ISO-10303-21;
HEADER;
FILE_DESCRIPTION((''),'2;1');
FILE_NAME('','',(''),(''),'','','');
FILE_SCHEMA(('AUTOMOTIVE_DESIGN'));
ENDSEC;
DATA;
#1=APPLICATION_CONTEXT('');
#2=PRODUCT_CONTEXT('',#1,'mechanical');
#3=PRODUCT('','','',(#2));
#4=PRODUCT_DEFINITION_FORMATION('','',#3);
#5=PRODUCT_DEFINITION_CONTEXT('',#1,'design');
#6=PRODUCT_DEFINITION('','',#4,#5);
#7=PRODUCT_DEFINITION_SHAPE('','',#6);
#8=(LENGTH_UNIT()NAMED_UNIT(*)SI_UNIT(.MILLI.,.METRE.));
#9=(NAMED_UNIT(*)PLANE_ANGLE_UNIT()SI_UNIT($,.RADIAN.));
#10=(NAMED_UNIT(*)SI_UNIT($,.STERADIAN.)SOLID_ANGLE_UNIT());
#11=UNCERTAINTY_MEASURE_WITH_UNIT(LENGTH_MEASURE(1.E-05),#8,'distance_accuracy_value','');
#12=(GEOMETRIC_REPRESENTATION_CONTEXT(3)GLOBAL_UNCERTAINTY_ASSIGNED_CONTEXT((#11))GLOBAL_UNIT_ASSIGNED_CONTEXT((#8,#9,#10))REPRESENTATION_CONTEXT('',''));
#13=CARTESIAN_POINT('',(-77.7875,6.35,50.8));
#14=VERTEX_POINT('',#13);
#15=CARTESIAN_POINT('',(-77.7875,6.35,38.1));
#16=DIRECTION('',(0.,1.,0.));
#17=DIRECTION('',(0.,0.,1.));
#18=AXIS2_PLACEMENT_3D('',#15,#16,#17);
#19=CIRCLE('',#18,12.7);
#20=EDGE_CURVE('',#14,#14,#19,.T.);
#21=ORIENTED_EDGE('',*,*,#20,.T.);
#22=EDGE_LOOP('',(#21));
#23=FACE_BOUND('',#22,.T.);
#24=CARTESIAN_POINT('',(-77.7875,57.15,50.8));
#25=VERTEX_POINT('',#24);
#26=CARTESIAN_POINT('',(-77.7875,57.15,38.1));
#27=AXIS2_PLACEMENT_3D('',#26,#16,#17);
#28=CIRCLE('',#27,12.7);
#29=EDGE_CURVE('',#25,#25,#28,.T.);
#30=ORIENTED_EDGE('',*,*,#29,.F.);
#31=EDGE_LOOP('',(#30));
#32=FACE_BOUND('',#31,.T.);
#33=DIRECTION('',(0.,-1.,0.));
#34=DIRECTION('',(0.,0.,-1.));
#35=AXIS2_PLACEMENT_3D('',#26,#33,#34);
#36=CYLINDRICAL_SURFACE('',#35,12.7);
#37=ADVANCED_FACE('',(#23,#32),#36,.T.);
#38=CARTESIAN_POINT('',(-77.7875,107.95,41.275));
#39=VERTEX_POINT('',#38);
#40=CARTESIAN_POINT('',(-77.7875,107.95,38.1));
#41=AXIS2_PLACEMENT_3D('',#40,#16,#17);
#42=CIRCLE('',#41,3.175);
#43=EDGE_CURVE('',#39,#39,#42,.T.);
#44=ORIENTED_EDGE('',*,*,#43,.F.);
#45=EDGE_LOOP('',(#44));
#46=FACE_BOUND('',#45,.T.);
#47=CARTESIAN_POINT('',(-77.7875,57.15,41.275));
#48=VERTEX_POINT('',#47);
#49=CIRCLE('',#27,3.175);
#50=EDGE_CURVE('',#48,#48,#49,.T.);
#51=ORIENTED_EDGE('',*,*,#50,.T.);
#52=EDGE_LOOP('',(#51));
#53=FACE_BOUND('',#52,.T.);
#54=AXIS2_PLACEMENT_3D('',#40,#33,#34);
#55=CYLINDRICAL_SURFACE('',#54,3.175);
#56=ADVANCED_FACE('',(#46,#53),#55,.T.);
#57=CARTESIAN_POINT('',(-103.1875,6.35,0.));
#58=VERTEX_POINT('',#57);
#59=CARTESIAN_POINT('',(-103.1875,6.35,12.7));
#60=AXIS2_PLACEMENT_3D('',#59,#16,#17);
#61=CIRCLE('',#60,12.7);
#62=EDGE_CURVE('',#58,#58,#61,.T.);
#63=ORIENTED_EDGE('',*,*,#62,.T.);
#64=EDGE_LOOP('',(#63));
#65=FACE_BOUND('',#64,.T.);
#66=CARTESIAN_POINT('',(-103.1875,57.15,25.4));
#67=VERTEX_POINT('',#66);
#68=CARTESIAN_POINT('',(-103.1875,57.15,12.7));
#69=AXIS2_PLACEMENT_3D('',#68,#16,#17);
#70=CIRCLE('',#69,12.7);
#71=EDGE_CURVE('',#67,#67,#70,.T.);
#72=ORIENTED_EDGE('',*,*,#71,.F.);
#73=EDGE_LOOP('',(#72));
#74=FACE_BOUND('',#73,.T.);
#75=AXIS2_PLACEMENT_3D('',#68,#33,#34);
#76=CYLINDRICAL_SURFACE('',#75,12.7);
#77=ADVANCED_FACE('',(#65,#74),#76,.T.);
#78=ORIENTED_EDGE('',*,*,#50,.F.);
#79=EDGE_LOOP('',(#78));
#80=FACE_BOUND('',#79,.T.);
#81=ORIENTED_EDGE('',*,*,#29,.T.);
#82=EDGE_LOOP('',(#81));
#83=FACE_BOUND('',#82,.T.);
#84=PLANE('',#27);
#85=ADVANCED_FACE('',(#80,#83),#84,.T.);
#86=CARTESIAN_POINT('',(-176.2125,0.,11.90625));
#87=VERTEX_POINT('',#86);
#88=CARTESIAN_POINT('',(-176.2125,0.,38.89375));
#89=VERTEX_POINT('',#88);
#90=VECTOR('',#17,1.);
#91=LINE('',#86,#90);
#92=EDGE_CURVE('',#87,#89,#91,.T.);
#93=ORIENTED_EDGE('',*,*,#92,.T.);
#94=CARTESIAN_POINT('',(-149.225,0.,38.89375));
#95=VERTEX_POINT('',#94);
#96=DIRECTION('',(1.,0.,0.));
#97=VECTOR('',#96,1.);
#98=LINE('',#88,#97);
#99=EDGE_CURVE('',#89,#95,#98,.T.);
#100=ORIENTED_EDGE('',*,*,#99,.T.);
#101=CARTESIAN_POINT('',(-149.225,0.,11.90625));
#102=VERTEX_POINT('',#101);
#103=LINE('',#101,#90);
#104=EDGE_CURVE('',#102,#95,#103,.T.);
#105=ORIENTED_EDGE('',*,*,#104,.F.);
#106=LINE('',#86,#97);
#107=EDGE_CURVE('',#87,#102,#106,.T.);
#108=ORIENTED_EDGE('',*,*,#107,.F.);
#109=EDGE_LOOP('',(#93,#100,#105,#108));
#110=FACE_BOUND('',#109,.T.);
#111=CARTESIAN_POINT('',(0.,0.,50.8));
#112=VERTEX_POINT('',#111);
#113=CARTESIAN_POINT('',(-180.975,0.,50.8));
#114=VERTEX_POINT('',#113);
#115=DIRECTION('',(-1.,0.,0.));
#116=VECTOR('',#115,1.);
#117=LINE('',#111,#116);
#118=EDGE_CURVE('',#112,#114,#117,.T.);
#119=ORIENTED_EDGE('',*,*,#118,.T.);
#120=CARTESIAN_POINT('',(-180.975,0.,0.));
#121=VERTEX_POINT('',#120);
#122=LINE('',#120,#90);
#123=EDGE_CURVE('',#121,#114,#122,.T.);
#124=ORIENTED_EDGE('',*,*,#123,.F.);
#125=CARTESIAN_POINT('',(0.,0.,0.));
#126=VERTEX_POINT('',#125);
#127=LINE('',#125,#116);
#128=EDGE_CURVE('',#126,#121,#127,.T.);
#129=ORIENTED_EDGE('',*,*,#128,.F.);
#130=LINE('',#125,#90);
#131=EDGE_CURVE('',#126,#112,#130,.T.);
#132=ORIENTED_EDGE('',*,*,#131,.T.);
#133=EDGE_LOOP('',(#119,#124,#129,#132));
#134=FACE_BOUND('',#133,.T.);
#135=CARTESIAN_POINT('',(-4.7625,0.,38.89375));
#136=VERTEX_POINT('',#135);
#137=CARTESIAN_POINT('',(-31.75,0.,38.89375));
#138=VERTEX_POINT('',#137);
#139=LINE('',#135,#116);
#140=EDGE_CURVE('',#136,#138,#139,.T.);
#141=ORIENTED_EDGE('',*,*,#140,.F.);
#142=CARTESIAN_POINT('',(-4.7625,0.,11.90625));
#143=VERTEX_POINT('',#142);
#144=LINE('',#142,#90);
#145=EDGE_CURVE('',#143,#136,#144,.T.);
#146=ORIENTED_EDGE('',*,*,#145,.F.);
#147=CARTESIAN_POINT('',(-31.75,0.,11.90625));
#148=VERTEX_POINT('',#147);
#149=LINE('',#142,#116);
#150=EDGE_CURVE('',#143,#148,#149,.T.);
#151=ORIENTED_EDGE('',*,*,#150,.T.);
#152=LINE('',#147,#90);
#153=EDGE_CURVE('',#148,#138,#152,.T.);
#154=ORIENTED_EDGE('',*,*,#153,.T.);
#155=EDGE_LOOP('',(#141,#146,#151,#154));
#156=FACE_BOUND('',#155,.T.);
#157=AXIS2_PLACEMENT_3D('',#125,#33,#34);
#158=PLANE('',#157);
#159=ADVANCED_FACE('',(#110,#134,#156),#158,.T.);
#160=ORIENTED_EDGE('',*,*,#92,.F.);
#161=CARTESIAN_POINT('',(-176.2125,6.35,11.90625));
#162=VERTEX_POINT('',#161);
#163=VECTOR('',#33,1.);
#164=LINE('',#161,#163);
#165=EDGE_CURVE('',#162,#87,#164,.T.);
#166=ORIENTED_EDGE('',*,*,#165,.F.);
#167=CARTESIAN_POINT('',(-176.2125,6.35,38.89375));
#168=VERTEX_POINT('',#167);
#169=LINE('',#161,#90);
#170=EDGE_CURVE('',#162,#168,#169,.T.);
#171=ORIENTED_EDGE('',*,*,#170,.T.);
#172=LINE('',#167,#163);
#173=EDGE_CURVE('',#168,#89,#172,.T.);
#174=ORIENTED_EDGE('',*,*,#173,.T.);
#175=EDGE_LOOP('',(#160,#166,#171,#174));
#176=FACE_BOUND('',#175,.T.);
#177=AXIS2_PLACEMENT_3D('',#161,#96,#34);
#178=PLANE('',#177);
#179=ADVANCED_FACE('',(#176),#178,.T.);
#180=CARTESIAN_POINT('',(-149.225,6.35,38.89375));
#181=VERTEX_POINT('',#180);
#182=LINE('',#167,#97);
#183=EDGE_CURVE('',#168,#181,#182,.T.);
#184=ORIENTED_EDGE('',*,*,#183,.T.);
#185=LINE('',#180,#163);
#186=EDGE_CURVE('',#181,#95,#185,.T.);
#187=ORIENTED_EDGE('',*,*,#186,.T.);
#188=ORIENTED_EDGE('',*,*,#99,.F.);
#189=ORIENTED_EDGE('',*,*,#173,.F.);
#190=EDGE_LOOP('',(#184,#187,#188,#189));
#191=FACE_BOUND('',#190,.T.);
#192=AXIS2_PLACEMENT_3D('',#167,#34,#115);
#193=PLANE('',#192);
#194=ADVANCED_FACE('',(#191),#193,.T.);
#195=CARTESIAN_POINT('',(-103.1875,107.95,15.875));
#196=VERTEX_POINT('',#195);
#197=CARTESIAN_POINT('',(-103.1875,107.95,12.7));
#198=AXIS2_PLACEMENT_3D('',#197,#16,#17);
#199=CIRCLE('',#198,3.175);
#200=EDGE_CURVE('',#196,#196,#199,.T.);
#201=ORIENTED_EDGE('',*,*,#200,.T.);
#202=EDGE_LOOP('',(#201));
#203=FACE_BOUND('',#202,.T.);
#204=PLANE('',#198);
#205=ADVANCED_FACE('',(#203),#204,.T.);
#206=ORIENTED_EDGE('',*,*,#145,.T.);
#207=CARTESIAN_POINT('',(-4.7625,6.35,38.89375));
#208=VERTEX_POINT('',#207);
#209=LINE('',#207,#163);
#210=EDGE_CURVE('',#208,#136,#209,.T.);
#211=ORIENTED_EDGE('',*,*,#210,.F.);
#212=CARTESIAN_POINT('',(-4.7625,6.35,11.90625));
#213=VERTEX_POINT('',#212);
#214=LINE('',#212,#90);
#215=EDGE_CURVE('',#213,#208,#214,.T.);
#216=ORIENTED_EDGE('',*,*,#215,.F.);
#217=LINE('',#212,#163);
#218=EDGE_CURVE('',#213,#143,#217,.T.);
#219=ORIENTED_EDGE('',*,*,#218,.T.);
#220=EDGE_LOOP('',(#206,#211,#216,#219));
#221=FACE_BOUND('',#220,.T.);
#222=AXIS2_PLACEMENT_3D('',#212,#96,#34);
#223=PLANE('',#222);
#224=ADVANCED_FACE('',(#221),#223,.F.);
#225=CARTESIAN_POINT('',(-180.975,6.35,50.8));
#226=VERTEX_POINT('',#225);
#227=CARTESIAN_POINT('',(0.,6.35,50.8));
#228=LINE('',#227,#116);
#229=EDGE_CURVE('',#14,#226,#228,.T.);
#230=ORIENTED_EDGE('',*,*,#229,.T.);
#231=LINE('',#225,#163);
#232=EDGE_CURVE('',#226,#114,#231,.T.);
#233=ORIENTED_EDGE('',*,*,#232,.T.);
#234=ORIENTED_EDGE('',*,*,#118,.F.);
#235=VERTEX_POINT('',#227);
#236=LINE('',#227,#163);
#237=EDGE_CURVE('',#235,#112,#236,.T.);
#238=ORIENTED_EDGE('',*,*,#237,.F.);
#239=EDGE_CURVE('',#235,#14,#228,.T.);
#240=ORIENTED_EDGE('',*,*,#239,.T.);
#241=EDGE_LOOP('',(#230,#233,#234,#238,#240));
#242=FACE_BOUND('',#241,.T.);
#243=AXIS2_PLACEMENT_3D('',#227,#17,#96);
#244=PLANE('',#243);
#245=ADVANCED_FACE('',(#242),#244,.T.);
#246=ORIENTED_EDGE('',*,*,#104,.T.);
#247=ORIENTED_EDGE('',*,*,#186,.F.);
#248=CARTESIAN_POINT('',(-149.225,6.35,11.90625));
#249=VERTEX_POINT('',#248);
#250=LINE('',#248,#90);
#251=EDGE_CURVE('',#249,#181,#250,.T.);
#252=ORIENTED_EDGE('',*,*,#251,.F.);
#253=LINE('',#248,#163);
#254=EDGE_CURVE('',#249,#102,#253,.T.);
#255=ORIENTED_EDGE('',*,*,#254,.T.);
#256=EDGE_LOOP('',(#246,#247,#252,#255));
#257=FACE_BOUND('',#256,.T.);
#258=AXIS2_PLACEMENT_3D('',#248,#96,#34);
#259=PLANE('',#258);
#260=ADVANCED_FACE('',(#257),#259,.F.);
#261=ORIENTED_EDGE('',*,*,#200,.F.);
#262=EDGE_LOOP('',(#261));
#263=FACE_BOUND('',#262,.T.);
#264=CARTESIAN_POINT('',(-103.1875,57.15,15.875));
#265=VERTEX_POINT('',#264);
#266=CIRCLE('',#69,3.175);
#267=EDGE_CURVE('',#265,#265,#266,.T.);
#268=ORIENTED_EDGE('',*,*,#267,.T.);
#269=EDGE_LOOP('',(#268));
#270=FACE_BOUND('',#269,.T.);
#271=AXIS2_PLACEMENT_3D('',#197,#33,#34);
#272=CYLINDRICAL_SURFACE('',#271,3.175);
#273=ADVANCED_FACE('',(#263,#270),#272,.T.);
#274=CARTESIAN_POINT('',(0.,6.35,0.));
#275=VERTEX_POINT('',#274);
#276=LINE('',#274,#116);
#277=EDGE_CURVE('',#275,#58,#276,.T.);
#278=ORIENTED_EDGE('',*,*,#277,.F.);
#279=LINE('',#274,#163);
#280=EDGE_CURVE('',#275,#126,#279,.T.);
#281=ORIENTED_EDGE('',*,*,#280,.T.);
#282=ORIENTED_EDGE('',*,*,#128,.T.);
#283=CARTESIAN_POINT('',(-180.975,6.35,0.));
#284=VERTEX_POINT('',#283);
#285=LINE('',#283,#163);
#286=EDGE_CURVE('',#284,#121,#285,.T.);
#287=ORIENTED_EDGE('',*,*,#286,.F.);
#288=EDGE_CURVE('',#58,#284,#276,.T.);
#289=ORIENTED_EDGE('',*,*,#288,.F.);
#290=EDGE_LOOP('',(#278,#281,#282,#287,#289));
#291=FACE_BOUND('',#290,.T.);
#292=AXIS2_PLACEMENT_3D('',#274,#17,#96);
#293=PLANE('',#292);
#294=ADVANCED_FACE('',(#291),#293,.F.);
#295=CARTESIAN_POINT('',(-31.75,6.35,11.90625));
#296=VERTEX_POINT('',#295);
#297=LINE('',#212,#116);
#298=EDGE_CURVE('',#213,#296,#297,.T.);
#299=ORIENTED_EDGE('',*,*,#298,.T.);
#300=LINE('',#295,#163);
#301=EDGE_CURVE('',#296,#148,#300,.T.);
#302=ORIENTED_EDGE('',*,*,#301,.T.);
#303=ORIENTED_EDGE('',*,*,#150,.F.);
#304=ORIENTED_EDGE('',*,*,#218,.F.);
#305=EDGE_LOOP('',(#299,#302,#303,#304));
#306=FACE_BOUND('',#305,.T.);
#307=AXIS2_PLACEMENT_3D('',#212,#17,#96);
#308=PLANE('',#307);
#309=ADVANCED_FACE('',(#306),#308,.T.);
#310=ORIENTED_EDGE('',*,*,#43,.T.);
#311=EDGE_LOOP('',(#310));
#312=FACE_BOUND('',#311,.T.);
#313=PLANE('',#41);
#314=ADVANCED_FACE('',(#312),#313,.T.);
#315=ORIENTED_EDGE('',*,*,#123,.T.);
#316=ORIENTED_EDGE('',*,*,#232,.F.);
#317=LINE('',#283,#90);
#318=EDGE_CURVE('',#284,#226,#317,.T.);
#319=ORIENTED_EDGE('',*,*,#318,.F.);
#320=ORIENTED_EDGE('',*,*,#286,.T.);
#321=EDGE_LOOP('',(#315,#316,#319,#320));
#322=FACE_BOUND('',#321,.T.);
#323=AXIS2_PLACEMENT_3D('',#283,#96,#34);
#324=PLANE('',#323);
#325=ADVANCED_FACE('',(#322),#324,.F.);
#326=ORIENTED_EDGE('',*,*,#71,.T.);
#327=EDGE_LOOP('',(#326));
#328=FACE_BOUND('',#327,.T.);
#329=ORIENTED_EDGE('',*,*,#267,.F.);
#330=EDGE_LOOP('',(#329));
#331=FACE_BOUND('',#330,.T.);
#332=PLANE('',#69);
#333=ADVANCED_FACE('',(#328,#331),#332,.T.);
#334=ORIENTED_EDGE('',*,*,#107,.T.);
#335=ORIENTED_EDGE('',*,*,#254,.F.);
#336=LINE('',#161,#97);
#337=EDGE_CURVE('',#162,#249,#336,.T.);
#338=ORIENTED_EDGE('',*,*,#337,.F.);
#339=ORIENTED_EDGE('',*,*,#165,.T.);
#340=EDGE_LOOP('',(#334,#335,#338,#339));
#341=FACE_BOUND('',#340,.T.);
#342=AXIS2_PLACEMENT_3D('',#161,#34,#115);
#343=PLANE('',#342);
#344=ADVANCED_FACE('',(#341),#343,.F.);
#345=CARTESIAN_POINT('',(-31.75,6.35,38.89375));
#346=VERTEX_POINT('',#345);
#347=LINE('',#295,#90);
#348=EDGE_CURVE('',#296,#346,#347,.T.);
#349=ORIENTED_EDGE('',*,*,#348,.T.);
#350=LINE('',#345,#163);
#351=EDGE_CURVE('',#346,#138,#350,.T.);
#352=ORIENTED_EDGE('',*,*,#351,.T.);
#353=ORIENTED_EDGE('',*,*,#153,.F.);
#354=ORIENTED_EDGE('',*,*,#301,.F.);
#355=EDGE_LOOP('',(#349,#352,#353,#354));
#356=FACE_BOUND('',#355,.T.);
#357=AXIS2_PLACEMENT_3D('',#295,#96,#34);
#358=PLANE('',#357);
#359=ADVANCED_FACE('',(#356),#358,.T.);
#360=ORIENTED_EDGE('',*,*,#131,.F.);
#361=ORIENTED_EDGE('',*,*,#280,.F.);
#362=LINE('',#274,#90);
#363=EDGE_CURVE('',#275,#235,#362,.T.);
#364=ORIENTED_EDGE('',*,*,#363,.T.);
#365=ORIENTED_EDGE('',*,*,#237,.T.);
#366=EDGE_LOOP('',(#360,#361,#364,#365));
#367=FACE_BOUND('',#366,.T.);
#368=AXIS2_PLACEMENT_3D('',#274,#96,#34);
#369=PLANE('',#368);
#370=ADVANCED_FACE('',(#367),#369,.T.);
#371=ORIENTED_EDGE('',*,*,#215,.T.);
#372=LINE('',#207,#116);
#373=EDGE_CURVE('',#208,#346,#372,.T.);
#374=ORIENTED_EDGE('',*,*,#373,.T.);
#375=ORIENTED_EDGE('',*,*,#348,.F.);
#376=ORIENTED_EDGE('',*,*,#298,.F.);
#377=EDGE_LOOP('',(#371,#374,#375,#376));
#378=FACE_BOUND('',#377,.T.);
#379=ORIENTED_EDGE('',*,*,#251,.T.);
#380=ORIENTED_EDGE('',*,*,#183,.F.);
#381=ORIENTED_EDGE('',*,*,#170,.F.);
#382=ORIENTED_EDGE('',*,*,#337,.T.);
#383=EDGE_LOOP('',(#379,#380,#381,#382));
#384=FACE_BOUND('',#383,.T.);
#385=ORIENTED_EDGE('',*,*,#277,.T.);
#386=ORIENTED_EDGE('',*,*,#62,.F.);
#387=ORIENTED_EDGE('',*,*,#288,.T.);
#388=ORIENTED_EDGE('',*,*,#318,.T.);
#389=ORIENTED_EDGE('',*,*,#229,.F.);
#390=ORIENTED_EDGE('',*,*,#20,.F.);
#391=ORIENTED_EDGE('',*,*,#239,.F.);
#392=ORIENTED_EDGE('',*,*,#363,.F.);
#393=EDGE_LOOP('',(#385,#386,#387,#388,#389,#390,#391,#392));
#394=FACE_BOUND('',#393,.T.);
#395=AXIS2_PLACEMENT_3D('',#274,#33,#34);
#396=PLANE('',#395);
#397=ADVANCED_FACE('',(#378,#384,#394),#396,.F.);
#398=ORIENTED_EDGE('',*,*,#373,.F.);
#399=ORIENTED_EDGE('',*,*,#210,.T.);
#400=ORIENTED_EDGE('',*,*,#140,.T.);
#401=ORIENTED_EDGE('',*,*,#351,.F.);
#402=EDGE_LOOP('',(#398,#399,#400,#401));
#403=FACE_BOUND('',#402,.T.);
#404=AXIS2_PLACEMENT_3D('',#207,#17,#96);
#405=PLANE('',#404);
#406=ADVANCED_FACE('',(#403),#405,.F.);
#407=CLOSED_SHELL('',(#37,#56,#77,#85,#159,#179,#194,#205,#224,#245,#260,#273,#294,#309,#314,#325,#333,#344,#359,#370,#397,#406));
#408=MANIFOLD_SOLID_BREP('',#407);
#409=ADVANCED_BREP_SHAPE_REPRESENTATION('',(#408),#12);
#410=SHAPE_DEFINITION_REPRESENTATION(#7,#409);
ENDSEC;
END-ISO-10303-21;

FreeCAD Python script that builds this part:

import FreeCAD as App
import Part
import Sketcher
from FreeCAD import Vector
Q = App.Units.Quantity

doc = App.newDocument("Part")
params = doc.addObject("Spreadsheet::Sheet", "Params")
for row, (alias, value) in enumerate([
    ("sketch1_height", "2 in"),
    ("sketch1_width", "7.125 in"),
    ("sketch1_width2", "1.0625 in"),
    ("pad1_length", "0.25 in"),
    ("sketch2_diameter", "0.25 in"),
    ("pad2_length", "4 in"),
    ("sketch3_diameter", "1 in"),
    ("pad3_length", "2 in"),
], start=1):
    params.set(f"A{row}", alias)
    params.set(f"B{row}", "=" + value)
    params.setAlias(f"B{row}", alias)

body = doc.addObject("PartDesign::Body", "Body")

sketch1 = body.newObject("Sketcher::SketchObject", "Sketch")
sketch1.AttachmentSupport = (doc.getObject("XZ_Plane"), [""])
sketch1.MapMode = "FlatFace"
sketch1.addGeometry([
    Part.LineSegment(Vector(-181, 0, 0), Vector(-181, 51, 0)),
    Part.LineSegment(Vector(-181, 51, 0), Vector(0, 51, 0)),
    Part.LineSegment(Vector(0, 51, 0), Vector(0, 0, 0)),
    Part.LineSegment(Vector(0, 0, 0), Vector(-181, 0, 0)),
    Part.LineSegment(Vector(-149, 39, 0), Vector(-176, 39, 0)),
    Part.LineSegment(Vector(-176, 39, 0), Vector(-176, 12, 0)),
    Part.LineSegment(Vector(-176, 12, 0), Vector(-149, 12, 0)),
    Part.LineSegment(Vector(-149, 12, 0), Vector(-149, 39, 0)),
    Part.LineSegment(Vector(-5, 39, 0), Vector(-32, 39, 0)),
    Part.LineSegment(Vector(-32, 39, 0), Vector(-32, 12, 0)),
    Part.LineSegment(Vector(-32, 12, 0), Vector(-5, 12, 0)),
    Part.LineSegment(Vector(-5, 12, 0), Vector(-5, 39, 0)),
], False)
sketch1.addConstraint([
    Sketcher.Constraint("Coincident", 0, 2, 1, 1),
    Sketcher.Constraint("Coincident", 1, 2, 2, 1),
    Sketcher.Constraint("Coincident", 2, 2, 3, 1),
    Sketcher.Constraint("Coincident", 3, 2, 0, 1),
    Sketcher.Constraint("Coincident", 4, 2, 5, 1),
    Sketcher.Constraint("Coincident", 5, 2, 6, 1),
    Sketcher.Constraint("Coincident", 6, 2, 7, 1),
    Sketcher.Constraint("Coincident", 7, 2, 4, 1),
    Sketcher.Constraint("Coincident", 8, 2, 9, 1),
    Sketcher.Constraint("Coincident", 9, 2, 10, 1),
    Sketcher.Constraint("Coincident", 10, 2, 11, 1),
    Sketcher.Constraint("Coincident", 11, 2, 8, 1),
    Sketcher.Constraint("Vertical", 0),
    Sketcher.Constraint("Horizontal", 1),
    Sketcher.Constraint("Vertical", 2),
    Sketcher.Constraint("Horizontal", 3),
    Sketcher.Constraint("Horizontal", 4),
    Sketcher.Constraint("Vertical", 5),
    Sketcher.Constraint("Horizontal", 6),
    Sketcher.Constraint("Vertical", 7),
    Sketcher.Constraint("Horizontal", 8),
    Sketcher.Constraint("Vertical", 9),
    Sketcher.Constraint("Horizontal", 10),
    Sketcher.Constraint("Vertical", 11),
    Sketcher.Constraint("Coincident", 2, 2, -1, 1),
    Sketcher.Constraint("Horizontal", 7, 2, 8, 2),
    Sketcher.Constraint("Horizontal", 6, 2, 9, 2),
    Sketcher.Constraint("Equal", 6, 8),
    Sketcher.Constraint("Equal", 10, 5),
    Sketcher.Constraint("DistanceY", 0, 1, 0, 2, Q("2 in")),
    Sketcher.Constraint("DistanceX", 1, 1, 1, 2, Q("7.125 in")),
    Sketcher.Constraint("DistanceX", 4, 2, 4, 1, Q("1.0625 in")),
    Sketcher.Constraint("DistanceX", 8, 2, -1, 1, Q("1.25 in")),
    Sketcher.Constraint("DistanceX", 3, 2, 6, 2, Q("1.25 in")),
    Sketcher.Constraint("DistanceY", -1, 1, 4, 2, Q("1.53125 in")),
])
sketch1.setExpression("Constraints[29]", "Params.sketch1_height")
sketch1.setExpression("Constraints[30]", "Params.sketch1_width")
sketch1.setExpression("Constraints[31]", "Params.sketch1_width2")
pad1 = body.newObject("PartDesign::Pad", "Pad")
pad1.Profile = sketch1
pad1.setExpression("Length", "Params.pad1_length")
pad1.Reversed = True

sketch2 = body.newObject("Sketcher::SketchObject", "Sketch001")
sketch2.AttachmentSupport = (doc.getObject("XZ_Plane"), [""])
sketch2.MapMode = "FlatFace"
sketch2.AttachmentOffset = App.Placement(Vector(0, 0, -0.25 * 25.4), App.Rotation())
sketch2.addGeometry([
    Part.Circle(Vector(-77.8, 38.1, 0), Vector(0, 0, 1), 3.2),
    Part.Circle(Vector(-103.2, 12.7, 0), Vector(0, 0, 1), 3.2),
], False)
sketch2.addConstraint([
    Sketcher.Constraint("Equal", 0, 1),
    Sketcher.Constraint("Diameter", 0, Q("0.25 in")),
    Sketcher.Constraint("DistanceX", 1, 3, 0, 3, Q("1 in")),
    Sketcher.Constraint("DistanceY", 1, 3, 0, 3, Q("1 in")),
    Sketcher.Constraint("DistanceY", -1, 1, 0, 3, Q("1.5 in")),
    Sketcher.Constraint("DistanceX", 0, 3, -1, 1, Q("3.0625 in")),
])
sketch2.setExpression("Constraints[1]", "Params.sketch2_diameter")
pad2 = body.newObject("PartDesign::Pad", "Pad001")
pad2.Profile = sketch2
pad2.setExpression("Length", "Params.pad2_length")
pad2.Reversed = True

sketch3 = body.newObject("Sketcher::SketchObject", "Sketch002")
sketch3.AttachmentSupport = (doc.getObject("XZ_Plane"), [""])
sketch3.MapMode = "FlatFace"
sketch3.AttachmentOffset = App.Placement(Vector(0, 0, -0.25 * 25.4), App.Rotation())
sketch3.addGeometry([
    Part.Circle(Vector(-103, 13, 0), Vector(0, 0, 1), 13),
    Part.Circle(Vector(-78, 38, 0), Vector(0, 0, 1), 13),
], False)
sketch3.addConstraint([
    Sketcher.Constraint("Equal", 0, 1),
    Sketcher.Constraint("Diameter", 0, Q("1 in")),
    Sketcher.Constraint("DistanceX", 0, 3, 1, 3, Q("1 in")),
    Sketcher.Constraint("DistanceY", 0, 3, 1, 3, Q("1 in")),
    Sketcher.Constraint("DistanceY", -1, 1, 0, 3, Q("0.5 in")),
    Sketcher.Constraint("DistanceX", 0, 3, -1, 1, Q("4.0625 in")),
])
sketch3.setExpression("Constraints[1]", "Params.sketch3_diameter")
pad3 = body.newObject("PartDesign::Pad", "Pad002")
pad3.Profile = sketch3
pad3.setExpression("Length", "Params.pad3_length")
pad3.Reversed = True

doc.recompute()
